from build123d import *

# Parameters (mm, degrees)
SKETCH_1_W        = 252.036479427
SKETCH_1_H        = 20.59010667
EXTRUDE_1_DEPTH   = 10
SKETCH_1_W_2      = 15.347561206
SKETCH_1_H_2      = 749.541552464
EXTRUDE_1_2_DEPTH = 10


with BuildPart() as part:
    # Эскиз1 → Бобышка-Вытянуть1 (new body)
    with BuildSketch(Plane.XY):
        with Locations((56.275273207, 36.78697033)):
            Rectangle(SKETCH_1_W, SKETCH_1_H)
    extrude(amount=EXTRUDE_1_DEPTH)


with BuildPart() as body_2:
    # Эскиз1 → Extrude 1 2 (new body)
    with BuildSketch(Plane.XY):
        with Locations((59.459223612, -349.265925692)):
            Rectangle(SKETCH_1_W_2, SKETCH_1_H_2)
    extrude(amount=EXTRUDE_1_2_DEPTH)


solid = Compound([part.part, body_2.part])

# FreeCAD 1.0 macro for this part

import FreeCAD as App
import Part
import Sketcher

V = App.Vector
Q = App.Units.Quantity


def add_polygon(sketch, points):
    """Adds a closed chain of lines whose ends are joined by coincident constraints."""
    first, n = sketch.GeometryCount, len(points)
    for a, b in zip(points, points[1:] + points[:1]):
        sketch.addGeometry(Part.LineSegment(App.Vector(*a, 0), App.Vector(*b, 0)), False)
    for i in range(n):
        sketch.addConstraint(Sketcher.Constraint("Coincident", first + i, 2, first + (i + 1) % n, 1))

doc = App.newDocument("Part")
body = doc.addObject("PartDesign::Body", "Body")

sketch1 = body.newObject("Sketcher::SketchObject", "Sketch")
sketch1.AttachmentSupport = (doc.getObject("XY_Plane"), [""])
sketch1.MapMode = "FlatFace"
add_polygon(sketch1, [(-70, 47), (-70, 26), (182, 26), (182, 47)])
sketch1.addConstraint([
    Sketcher.Constraint("Vertical", 0),
    Sketcher.Constraint("Horizontal", 1),
    Sketcher.Constraint("Vertical", 2),
    Sketcher.Constraint("Horizontal", 3),
    Sketcher.Constraint("DistanceX", 1, 1, 1, 2, Q("252.036479 mm")),
    Sketcher.Constraint("DistanceY", 0, 2, 0, 1, Q("20.590107 mm")),
    Sketcher.Constraint("DistanceX", 0, 2, -1, 1, Q("69.742967 mm")),
    Sketcher.Constraint("DistanceY", -1, 1, 0, 2, Q("26.491917 mm")),
])
pad1 = body.newObject("PartDesign::Pad", "Pad")
pad1.Profile = sketch1
pad1.Length = 10
body2 = doc.addObject("PartDesign::Body", "Body001")

sketch2 = body2.newObject("Sketcher::SketchObject", "Sketch001")
sketch2.AttachmentSupport = (doc.getObject("XY_Plane001"), [""])
sketch2.MapMode = "FlatFace"
add_polygon(sketch2, [(52, 26), (52, -724), (67, -724), (67, 26)])
sketch2.addConstraint([
    Sketcher.Constraint("Vertical", 0),
    Sketcher.Constraint("Horizontal", 1),
    Sketcher.Constraint("Vertical", 2),
    Sketcher.Constraint("Horizontal", 3),
    Sketcher.Constraint("DistanceX", 1, 1, 1, 2, Q("15.347561 mm")),
    Sketcher.Constraint("DistanceY", 0, 2, -1, 1, Q("724.036702 mm")),
    Sketcher.Constraint("DistanceY", 0, 2, 0, 1, Q("749.541552 mm")),
    Sketcher.Constraint("DistanceX", -1, 1, 0, 2, Q("51.785443 mm")),
])
pad2 = body2.newObject("PartDesign::Pad", "Pad001")
pad2.Profile = sketch2
pad2.Length = 10

doc.recompute()
